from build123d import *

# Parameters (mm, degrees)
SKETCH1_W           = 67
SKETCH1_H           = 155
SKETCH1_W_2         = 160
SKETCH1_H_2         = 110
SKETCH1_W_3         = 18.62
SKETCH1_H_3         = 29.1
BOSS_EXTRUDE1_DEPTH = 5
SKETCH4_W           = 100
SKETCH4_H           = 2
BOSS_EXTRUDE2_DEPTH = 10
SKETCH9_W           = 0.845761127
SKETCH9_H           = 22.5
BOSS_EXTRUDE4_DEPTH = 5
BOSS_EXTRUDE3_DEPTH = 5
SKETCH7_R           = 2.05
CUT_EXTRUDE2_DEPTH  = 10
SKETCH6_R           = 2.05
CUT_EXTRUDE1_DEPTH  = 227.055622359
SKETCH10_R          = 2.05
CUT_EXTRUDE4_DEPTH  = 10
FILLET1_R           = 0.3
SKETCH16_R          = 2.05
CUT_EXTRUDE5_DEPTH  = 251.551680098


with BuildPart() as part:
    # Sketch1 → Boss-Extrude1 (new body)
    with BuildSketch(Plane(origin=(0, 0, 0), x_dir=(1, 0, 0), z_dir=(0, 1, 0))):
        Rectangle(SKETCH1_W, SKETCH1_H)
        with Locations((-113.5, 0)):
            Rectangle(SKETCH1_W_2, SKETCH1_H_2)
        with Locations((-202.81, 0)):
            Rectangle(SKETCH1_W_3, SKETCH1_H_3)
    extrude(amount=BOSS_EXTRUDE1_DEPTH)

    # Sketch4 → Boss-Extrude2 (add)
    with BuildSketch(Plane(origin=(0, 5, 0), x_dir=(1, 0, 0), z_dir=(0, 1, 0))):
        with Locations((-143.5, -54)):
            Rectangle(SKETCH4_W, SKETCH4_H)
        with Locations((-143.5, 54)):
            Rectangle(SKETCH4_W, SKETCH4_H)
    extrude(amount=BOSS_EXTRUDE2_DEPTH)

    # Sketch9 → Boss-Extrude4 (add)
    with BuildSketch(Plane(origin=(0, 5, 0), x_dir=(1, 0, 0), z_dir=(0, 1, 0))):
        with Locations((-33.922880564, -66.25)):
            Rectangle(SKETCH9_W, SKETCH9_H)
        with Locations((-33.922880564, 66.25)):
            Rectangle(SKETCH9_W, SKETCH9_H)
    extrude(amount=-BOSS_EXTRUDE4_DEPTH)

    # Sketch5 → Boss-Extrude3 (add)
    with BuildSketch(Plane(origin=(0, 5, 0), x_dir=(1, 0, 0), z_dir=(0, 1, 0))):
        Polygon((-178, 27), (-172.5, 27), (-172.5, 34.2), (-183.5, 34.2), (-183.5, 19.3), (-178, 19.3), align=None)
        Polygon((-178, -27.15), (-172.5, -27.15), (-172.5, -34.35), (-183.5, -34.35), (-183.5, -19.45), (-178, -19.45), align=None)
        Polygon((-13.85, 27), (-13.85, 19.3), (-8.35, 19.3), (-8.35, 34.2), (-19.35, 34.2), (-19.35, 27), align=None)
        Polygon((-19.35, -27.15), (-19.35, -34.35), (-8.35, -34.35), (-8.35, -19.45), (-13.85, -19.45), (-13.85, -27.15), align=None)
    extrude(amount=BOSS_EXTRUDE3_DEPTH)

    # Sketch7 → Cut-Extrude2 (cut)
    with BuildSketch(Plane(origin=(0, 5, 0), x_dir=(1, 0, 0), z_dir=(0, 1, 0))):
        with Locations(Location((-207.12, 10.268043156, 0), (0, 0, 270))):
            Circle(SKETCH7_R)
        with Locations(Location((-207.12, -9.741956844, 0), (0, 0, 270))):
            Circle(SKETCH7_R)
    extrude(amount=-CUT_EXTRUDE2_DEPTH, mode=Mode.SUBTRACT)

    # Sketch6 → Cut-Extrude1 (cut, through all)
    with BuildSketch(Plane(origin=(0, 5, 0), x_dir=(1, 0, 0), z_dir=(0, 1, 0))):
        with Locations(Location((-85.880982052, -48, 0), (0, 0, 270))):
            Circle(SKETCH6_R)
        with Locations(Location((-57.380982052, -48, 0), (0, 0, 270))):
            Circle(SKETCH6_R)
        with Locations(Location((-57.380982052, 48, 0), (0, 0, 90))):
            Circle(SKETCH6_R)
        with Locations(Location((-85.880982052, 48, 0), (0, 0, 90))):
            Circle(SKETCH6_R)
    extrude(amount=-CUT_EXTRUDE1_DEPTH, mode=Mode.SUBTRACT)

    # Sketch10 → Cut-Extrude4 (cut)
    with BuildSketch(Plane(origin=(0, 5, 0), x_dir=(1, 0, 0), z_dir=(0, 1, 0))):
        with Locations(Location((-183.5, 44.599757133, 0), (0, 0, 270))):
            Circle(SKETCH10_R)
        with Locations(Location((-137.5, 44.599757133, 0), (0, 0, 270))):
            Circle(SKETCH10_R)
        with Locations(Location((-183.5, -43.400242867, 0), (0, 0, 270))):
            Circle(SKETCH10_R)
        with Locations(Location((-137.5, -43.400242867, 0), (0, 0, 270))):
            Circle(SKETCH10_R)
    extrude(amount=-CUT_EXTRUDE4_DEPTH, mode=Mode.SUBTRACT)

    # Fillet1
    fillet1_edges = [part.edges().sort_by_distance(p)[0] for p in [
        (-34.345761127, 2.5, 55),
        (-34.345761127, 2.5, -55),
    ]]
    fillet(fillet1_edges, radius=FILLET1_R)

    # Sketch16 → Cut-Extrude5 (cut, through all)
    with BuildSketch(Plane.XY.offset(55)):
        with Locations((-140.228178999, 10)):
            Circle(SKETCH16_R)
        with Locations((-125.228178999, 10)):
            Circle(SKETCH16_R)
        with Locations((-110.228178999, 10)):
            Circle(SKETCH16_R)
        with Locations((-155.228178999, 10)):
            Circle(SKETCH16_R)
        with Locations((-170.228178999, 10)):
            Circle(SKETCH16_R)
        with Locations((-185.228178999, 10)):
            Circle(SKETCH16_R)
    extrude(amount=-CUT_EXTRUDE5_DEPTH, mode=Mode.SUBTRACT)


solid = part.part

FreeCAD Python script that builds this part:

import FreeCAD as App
import Part
import Sketcher


def edges_at(feature, points):
    """Names of the edges that pass closest to the given points."""
    edges = feature.Shape.Edges
    near = lambda p: min(range(len(edges)), key=lambda i: edges[i].distToShape(Part.Vertex(*p))[0])
    return sorted({f"Edge{near(p) + 1}" for p in points})

doc = App.newDocument("Part")
params = doc.addObject("Spreadsheet::Sheet", "Params")
for row, (alias, value) in enumerate([
    ("sketch1_width", "67 mm"),
    ("sketch1_width2", "160 mm"),
    ("sketch1_height", "155 mm"),
    ("sketch1_height2", "22.5 mm"),
    ("sketch1_height3", "29.1 mm"),
    ("pad1_length", "5 mm"),
    ("sketch2_width", "100 mm"),
    ("sketch2_height", "2 mm"),
    ("pad2_length", "10 mm"),
    ("sketch3_height", "22.5 mm"),
    ("pad3_length", "5 mm"),
    ("sketch4_width", "11 mm"),
    ("sketch4_height", "7.2 mm"),
    ("sketch4_height2", "14.9 mm"),
    ("pad4_length", "5 mm"),
    ("sketch5_diameter", "4.1 mm"),
    ("pocket1_length", "10 mm"),
    ("sketch6_diameter", "4.1 mm"),
    ("sketch7_diameter", "4.1 mm"),
    ("pocket3_length", "10 mm"),
    ("fillet_radius", "0.3 mm"),
    ("sketch8_diameter", "4.1 mm"),
], start=1):
    params.set(f"A{row}", alias)
    params.set(f"B{row}", "=" + value)
    params.setAlias(f"B{row}", alias)

body = doc.addObject("PartDesign::Body", "Body")

sketch1 = doc.addObject("Sketcher::SketchObject", "Sketch")
body.addObject(sketch1)
sketch1.AttachmentSupport = (doc.XZ_Plane, [""])
sketch1.MapMode = "FlatFace"
sketch1.addGeometry(Part.LineSegment(App.Vector(-33.5, 55, 0), App.Vector(-33.5, 77.5, 0)), False)
sketch1.addGeometry(Part.LineSegment(App.Vector(-33.5, 77.5, 0), App.Vector(33.5, 77.5, 0)), False)
sketch1.addGeometry(Part.LineSegment(App.Vector(33.5, 77.5, 0), App.Vector(33.5, -77.5, 0)), False)
sketch1.addGeometry(Part.LineSegment(App.Vector(33.5, -77.5, 0), App.Vector(-33.5, -77.5, 0)), False)
sketch1.addGeometry(Part.LineSegment(App.Vector(-33.5, -77.5, 0), App.Vector(-33.5, -55, 0)), False)
sketch1.addGeometry(Part.LineSegment(App.Vector(-33.5, -55, 0), App.Vector(-193.5, -55, 0)), False)
sketch1.addGeometry(Part.LineSegment(App.Vector(-193.5, -55, 0), App.Vector(-193.5, -14.55, 0)), False)
sketch1.addGeometry(Part.LineSegment(App.Vector(-193.5, -14.55, 0), App.Vector(-212.12, -14.55, 0)), False)
sketch1.addGeometry(Part.LineSegment(App.Vector(-212.12, -14.55, 0), App.Vector(-212.12, 14.55, 0)), False)
sketch1.addGeometry(Part.LineSegment(App.Vector(-212.12, 14.55, 0), App.Vector(-193.5, 14.55, 0)), False)
sketch1.addGeometry(Part.LineSegment(App.Vector(-193.5, 14.55, 0), App.Vector(-193.5, 55, 0)), False)
sketch1.addGeometry(Part.LineSegment(App.Vector(-193.5, 55, 0), App.Vector(-33.5, 55, 0)), False)
sketch1.addConstraint(Sketcher.Constraint("Coincident", 0, 2, 1, 1))
sketch1.addConstraint(Sketcher.Constraint("Coincident", 1, 2, 2, 1))
sketch1.addConstraint(Sketcher.Constraint("Coincident", 2, 2, 3, 1))
sketch1.addConstraint(Sketcher.Constraint("Coincident", 3, 2, 4, 1))
sketch1.addConstraint(Sketcher.Constraint("Coincident", 4, 2, 5, 1))
sketch1.addConstraint(Sketcher.Constraint("Coincident", 5, 2, 6, 1))
sketch1.addConstraint(Sketcher.Constraint("Coincident", 6, 2, 7, 1))
sketch1.addConstraint(Sketcher.Constraint("Coincident", 7, 2, 8, 1))
sketch1.addConstraint(Sketcher.Constraint("Coincident", 8, 2, 9, 1))
sketch1.addConstraint(Sketcher.Constraint("Coincident", 9, 2, 10, 1))
sketch1.addConstraint(Sketcher.Constraint("Coincident", 10, 2, 11, 1))
sketch1.addConstraint(Sketcher.Constraint("Coincident", 11, 2, 0, 1))
sketch1.addConstraint(Sketcher.Constraint("Vertical", 0))
sketch1.addConstraint(Sketcher.Constraint("Horizontal", 1))
sketch1.addConstraint(Sketcher.Constraint("Vertical", 2))
sketch1.addConstraint(Sketcher.Constraint("Horizontal", 3))
sketch1.addConstraint(Sketcher.Constraint("Vertical", 4))
sketch1.addConstraint(Sketcher.Constraint("Horizontal", 5))
sketch1.addConstraint(Sketcher.Constraint("Vertical", 6))
sketch1.addConstraint(Sketcher.Constraint("Horizontal", 7))
sketch1.addConstraint(Sketcher.Constraint("Vertical", 8))
sketch1.addConstraint(Sketcher.Constraint("Horizontal", 9))
sketch1.addConstraint(Sketcher.Constraint("Vertical", 10))
sketch1.addConstraint(Sketcher.Constraint("Horizontal", 11))
sketch1.addConstraint(Sketcher.Constraint("Symmetric", 0, 2, 2, 2, -1, 1))
sketch1.addConstraint(Sketcher.Constraint("Symmetric", 6, 2, 9, 2, -1))
sketch1.addConstraint(Sketcher.Constraint("Symmetric", 4, 2, 11, 2, -1))
sketch1.addConstraint(Sketcher.Constraint("DistanceX", 1, 1, 1, 2, 67.0))
sketch1.addConstraint(Sketcher.Constraint("DistanceX", 5, 2, 5, 1, 160.0))
sketch1.addConstraint(Sketcher.Constraint("DistanceY", 2, 2, 2, 1, 155.0))
sketch1.addConstraint(Sketcher.Constraint("DistanceY", 0, 1, 0, 2, 22.5))
sketch1.addConstraint(Sketcher.Constraint("DistanceY", 8, 1, 8, 2, 29.1))
sketch1.addConstraint(Sketcher.Constraint("DistanceX", 7, 2, 7, 1, 18.62))
sketch1.setExpression("Constraints[27]", "Params.sketch1_width")
sketch1.setExpression("Constraints[28]", "Params.sketch1_width2")
sketch1.setExpression("Constraints[29]", "Params.sketch1_height")
sketch1.setExpression("Constraints[30]", "Params.sketch1_height2")
sketch1.setExpression("Constraints[31]", "Params.sketch1_height3")
pad1 = doc.addObject("PartDesign::Pad", "Pad")
body.addObject(pad1)
pad1.Profile = sketch1
pad1.setExpression("Length", "Params.pad1_length")
pad1.Reversed = True

sketch2 = doc.addObject("Sketcher::SketchObject", "Sketch001")
body.addObject(sketch2)
sketch2.AttachmentSupport = (doc.XZ_Plane, [""])
sketch2.MapMode = "FlatFace"
sketch2.AttachmentOffset = App.Placement(App.Vector(0, 0, -5), App.Rotation())
sketch2.addGeometry(Part.LineSegment(App.Vector(-193.5, 53, 0), App.Vector(-193.5, 55, 0)), False)
sketch2.addGeometry(Part.LineSegment(App.Vector(-193.5, 55, 0), App.Vector(-93.5, 55, 0)), False)
sketch2.addGeometry(Part.LineSegment(App.Vector(-93.5, 55, 0), App.Vector(-93.5, 53, 0)), False)
sketch2.addGeometry(Part.LineSegment(App.Vector(-93.5, 53, 0), App.Vector(-193.5, 53, 0)), False)
sketch2.addGeometry(Part.LineSegment(App.Vector(-193.5, -55, 0), App.Vector(-193.5, -53, 0)), False)
sketch2.addGeometry(Part.LineSegment(App.Vector(-193.5, -53, 0), App.Vector(-93.5, -53, 0)), False)
sketch2.addGeometry(Part.LineSegment(App.Vector(-93.5, -53, 0), App.Vector(-93.5, -55, 0)), False)
sketch2.addGeometry(Part.LineSegment(App.Vector(-93.5, -55, 0), App.Vector(-193.5, -55, 0)), False)
sketch2.addConstraint(Sketcher.Constraint("Coincident", 0, 2, 1, 1))
sketch2.addConstraint(Sketcher.Constraint("Coincident", 1, 2, 2, 1))
sketch2.addConstraint(Sketcher.Constraint("Coincident", 2, 2, 3, 1))
sketch2.addConstraint(Sketcher.Constraint("Coincident", 3, 2, 0, 1))
sketch2.addConstraint(Sketcher.Constraint("Coincident", 4, 2, 5, 1))
sketch2.addConstraint(Sketcher.Constraint("Coincident", 5, 2, 6, 1))
sketch2.addConstraint(Sketcher.Constraint("Coincident", 6, 2, 7, 1))
sketch2.addConstraint(Sketcher.Constraint("Coincident", 7, 2, 4, 1))
sketch2.addConstraint(Sketcher.Constraint("Vertical", 0))
sketch2.addConstraint(Sketcher.Constraint("Horizontal", 1))
sketch2.addConstraint(Sketcher.Constraint("Vertical", 2))
sketch2.addConstraint(Sketcher.Constraint("Horizontal", 3))
sketch2.addConstraint(Sketcher.Constraint("Vertical", 4))
sketch2.addConstraint(Sketcher.Constraint("Horizontal", 5))
sketch2.addConstraint(Sketcher.Constraint("Vertical", 6))
sketch2.addConstraint(Sketcher.Constraint("Horizontal", 7))
sketch2.addConstraint(Sketcher.Constraint("Symmetric", 3, 2, 4, 2, -1))
sketch2.addConstraint(Sketcher.Constraint("Symmetric", 1, 2, 6, 2, -1))
sketch2.addConstraint(Sketcher.Constraint("DistanceX", 1, 1, 1, 2, 100.0))
sketch2.addConstraint(Sketcher.Constraint("DistanceY", 0, 1, 0, 2, 2.0))
sketch2.addConstraint(Sketcher.Constraint("DistanceY", -1, 1, 0, 2, 55.0))
sketch2.addConstraint(Sketcher.Constraint("DistanceX", 0, 2, -1, 1, 193.5))
sketch2.setExpression("Constraints[18]", "Params.sketch2_width")
sketch2.setExpression("Constraints[19]", "Params.sketch2_height")
pad2 = doc.addObject("PartDesign::Pad", "Pad001")
body.addObject(pad2)
pad2.Profile = sketch2
pad2.setExpression("Length", "Params.pad2_length")
pad2.Reversed = True

sketch3 = doc.addObject("Sketcher::SketchObject", "Sketch002")
body.addObject(sketch3)
sketch3.AttachmentSupport = (doc.XZ_Plane, [""])
sketch3.MapMode = "FlatFace"
sketch3.AttachmentOffset = App.Placement(App.Vector(0, 0, -5), App.Rotation())
sketch3.addGeometry(Part.LineSegment(App.Vector(-34.345761, 55, 0), App.Vector(-34.345761, 77.5, 0)), False)
sketch3.addGeometry(Part.LineSegment(App.Vector(-34.345761, 77.5, 0), App.Vector(-33.5, 77.5, 0)), False)
sketch3.addGeometry(Part.LineSegment(App.Vector(-33.5, 77.5, 0), App.Vector(-33.5, 55, 0)), False)
sketch3.addGeometry(Part.LineSegment(App.Vector(-33.5, 55, 0), App.Vector(-34.345761, 55, 0)), False)
sketch3.addGeometry(Part.LineSegment(App.Vector(-34.345761, -77.5, 0), App.Vector(-34.345761, -55, 0)), False)
sketch3.addGeometry(Part.LineSegment(App.Vector(-34.345761, -55, 0), App.Vector(-33.5, -55, 0)), False)
sketch3.addGeometry(Part.LineSegment(App.Vector(-33.5, -55, 0), App.Vector(-33.5, -77.5, 0)), False)
sketch3.addGeometry(Part.LineSegment(App.Vector(-33.5, -77.5, 0), App.Vector(-34.345761, -77.5, 0)), False)
sketch3.addConstraint(Sketcher.Constraint("Coincident", 0, 2, 1, 1))
sketch3.addConstraint(Sketcher.Constraint("Coincident", 1, 2, 2, 1))
sketch3.addConstraint(Sketcher.Constraint("Coincident", 2, 2, 3, 1))
sketch3.addConstraint(Sketcher.Constraint("Coincident", 3, 2, 0, 1))
sketch3.addConstraint(Sketcher.Constraint("Coincident", 4, 2, 5, 1))
sketch3.addConstraint(Sketcher.Constraint("Coincident", 5, 2, 6, 1))
sketch3.addConstraint(Sketcher.Constraint("Coincident", 6, 2, 7, 1))
sketch3.addConstraint(Sketcher.Constraint("Coincident", 7, 2, 4, 1))
sketch3.addConstraint(Sketcher.Constraint("Vertical", 0))
sketch3.addConstraint(Sketcher.Constraint("Horizontal", 1))
sketch3.addConstraint(Sketcher.Constraint("Vertical", 2))
sketch3.addConstraint(Sketcher.Constraint("Horizontal", 3))
sketch3.addConstraint(Sketcher.Constraint("Vertical", 4))
sketch3.addConstraint(Sketcher.Constraint("Horizontal", 5))
sketch3.addConstraint(Sketcher.Constraint("Vertical", 6))
sketch3.addConstraint(Sketcher.Constraint("Horizontal", 7))
sketch3.addConstraint(Sketcher.Constraint("Symmetric", 3, 2, 4, 2, -1))
sketch3.addConstraint(Sketcher.Constraint("Symmetric", 1, 2, 6, 2, -1))
sketch3.addConstraint(Sketcher.Constraint("DistanceY", 0, 1, 0, 2, 22.5))
sketch3.addConstraint(Sketcher.Constraint("DistanceY", -1, 1, 2, 2, 55.0))
sketch3.addConstraint(Sketcher.Constraint("DistanceX", 1, 2, -1, 1, 33.5))
sketch3.addConstraint(Sketcher.Constraint("DistanceX", 1, 1, 1, 2, 0.845761))
sketch3.setExpression("Constraints[18]", "Params.sketch3_height")
pad3 = doc.addObject("PartDesign::Pad", "Pad002")
body.addObject(pad3)
pad3.Profile = sketch3
pad3.setExpression("Length", "Params.pad3_length")

sketch4 = doc.addObject("Sketcher::SketchObject", "Sketch003")
body.addObject(sketch4)
sketch4.AttachmentSupport = (doc.XZ_Plane, [""])
sketch4.MapMode = "FlatFace"
sketch4.AttachmentOffset = App.Placement(App.Vector(0, 0, -5), App.Rotation())
sketch4.addGeometry(Part.LineSegment(App.Vector(-178, -27, 0), App.Vector(-172.5, -27, 0)), False)
sketch4.addGeometry(Part.LineSegment(App.Vector(-172.5, -27, 0), App.Vector(-172.5, -34.2, 0)), False)
sketch4.addGeometry(Part.LineSegment(App.Vector(-172.5, -34.2, 0), App.Vector(-183.5, -34.2, 0)), False)
sketch4.addGeometry(Part.LineSegment(App.Vector(-183.5, -34.2, 0), App.Vector(-183.5, -19.3, 0)), False)
sketch4.addGeometry(Part.LineSegment(App.Vector(-183.5, -19.3, 0), App.Vector(-178, -19.3, 0)), False)
sketch4.addGeometry(Part.LineSegment(App.Vector(-178, -19.3, 0), App.Vector(-178, -27, 0)), False)
sketch4.addGeometry(Part.LineSegment(App.Vector(-172.5, 27.15, 0), App.Vector(-178, 27.15, 0)), False)
sketch4.addGeometry(Part.LineSegment(App.Vector(-178, 27.15, 0), App.Vector(-178, 19.45, 0)), False)
sketch4.addGeometry(Part.LineSegment(App.Vector(-178, 19.45, 0), App.Vector(-183.5, 19.45, 0)), False)
sketch4.addGeometry(Part.LineSegment(App.Vector(-183.5, 19.45, 0), App.Vector(-183.5, 34.35, 0)), False)
sketch4.addGeometry(Part.LineSegment(App.Vector(-183.5, 34.35, 0), App.Vector(-172.5, 34.35, 0)), False)
sketch4.addGeometry(Part.LineSegment(App.Vector(-172.5, 34.35, 0), App.Vector(-172.5, 27.15, 0)), False)
sketch4.addGeometry(Part.LineSegment(App.Vector(-13.85, -27, 0), App.Vector(-13.85, -19.3, 0)), False)
sketch4.addGeometry(Part.LineSegment(App.Vector(-13.85, -19.3, 0), App.Vector(-8.35, -19.3, 0)), False)
sketch4.addGeometry(Part.LineSegment(App.Vector(-8.35, -19.3, 0), App.Vector(-8.35, -34.2, 0)), False)
sketch4.addGeometry(Part.LineSegment(App.Vector(-8.35, -34.2, 0), App.Vector(-19.35, -34.2, 0)), False)
sketch4.addGeometry(Part.LineSegment(App.Vector(-19.35, -34.2, 0), App.Vector(-19.35, -27, 0)), False)
sketch4.addGeometry(Part.LineSegment(App.Vector(-19.35, -27, 0), App.Vector(-13.85, -27, 0)), False)
sketch4.addGeometry(Part.LineSegment(App.Vector(-19.35, 27.15, 0), App.Vector(-19.35, 34.35, 0)), False)
sketch4.addGeometry(Part.LineSegment(App.Vector(-19.35, 34.35, 0), App.Vector(-8.35, 34.35, 0)), False)
sketch4.addGeometry(Part.LineSegment(App.Vector(-8.35, 34.35, 0), App.Vector(-8.35, 19.45, 0)), False)
sketch4.addGeometry(Part.LineSegment(App.Vector(-8.35, 19.45, 0), App.Vector(-13.85, 19.45, 0)), False)
sketch4.addGeometry(Part.LineSegment(App.Vector(-13.85, 19.45, 0), App.Vector(-13.85, 27.15, 0)), False)
sketch4.addGeometry(Part.LineSegment(App.Vector(-13.85, 27.15, 0), App.Vector(-19.35, 27.15, 0)), False)
sketch4.addConstraint(Sketcher.Constraint("Coincident", 0, 2, 1, 1))
sketch4.addConstraint(Sketcher.Constraint("Coincident", 1, 2, 2, 1))
sketch4.addConstraint(Sketcher.Constraint("Coincident", 2, 2, 3, 1))
sketch4.addConstraint(Sketcher.Constraint("Coincident", 3, 2, 4, 1))
sketch4.addConstraint(Sketcher.Constraint("Coincident", 4, 2, 5, 1))
sketch4.addConstraint(Sketcher.Constraint("Coincident", 5, 2, 0, 1))
sketch4.addConstraint(Sketcher.Constraint("Coincident", 6, 2, 7, 1))
sketch4.addConstraint(Sketcher.Constraint("Coincident", 7, 2, 8, 1))
sketch4.addConstraint(Sketcher.Constraint("Coincident", 8, 2, 9, 1))
sketch4.addConstraint(Sketcher.Constraint("Coincident", 9, 2, 10, 1))
sketch4.addConstraint(Sketcher.Constraint("Coincident", 10, 2, 11, 1))
sketch4.addConstraint(Sketcher.Constraint("Coincident", 11, 2, 6, 1))
sketch4.addConstraint(Sketcher.Constraint("Coincident", 12, 2, 13, 1))
sketch4.addConstraint(Sketcher.Constraint("Coincident", 13, 2, 14, 1))
sketch4.addConstraint(Sketcher.Constraint("Coincident", 14, 2, 15, 1))
sketch4.addConstraint(Sketcher.Constraint("Coincident", 15, 2, 16, 1))
sketch4.addConstraint(Sketcher.Constraint("Coincident", 16, 2, 17, 1))
sketch4.addConstraint(Sketcher.Constraint("Coincident", 17, 2, 12, 1))
sketch4.addConstraint(Sketcher.Constraint("Coincident", 18, 2, 19, 1))
sketch4.addConstraint(Sketcher.Constraint("Coincident", 19, 2, 20, 1))
sketch4.addConstraint(Sketcher.Constraint("Coincident", 20, 2, 21, 1))
sketch4.addConstraint(Sketcher.Constraint("Coincident", 21, 2, 22, 1))
sketch4.addConstraint(Sketcher.Constraint("Coincident", 22, 2, 23, 1))
sketch4.addConstraint(Sketcher.Constraint("Coincident", 23, 2, 18, 1))
sketch4.addConstraint(Sketcher.Constraint("Horizontal", 0))
sketch4.addConstraint(Sketcher.Constraint("Vertical", 1))
sketch4.addConstraint(Sketcher.Constraint("Horizontal", 2))
sketch4.addConstraint(Sketcher.Constraint("Vertical", 3))
sketch4.addConstraint(Sketcher.Constraint("Horizontal", 4))
sketch4.addConstraint(Sketcher.Constraint("Vertical", 5))
sketch4.addConstraint(Sketcher.Constraint("Horizontal", 6))
sketch4.addConstraint(Sketcher.Constraint("Vertical", 7))
sketch4.addConstraint(Sketcher.Constraint("Horizontal", 8))
sketch4.addConstraint(Sketcher.Constraint("Vertical", 9))
sketch4.addConstraint(Sketcher.Constraint("Horizontal", 10))
sketch4.addConstraint(Sketcher.Constraint("Vertical", 11))
sketch4.addConstraint(Sketcher.Constraint("Vertical", 12))
sketch4.addConstraint(Sketcher.Constraint("Horizontal", 13))
sketch4.addConstraint(Sketcher.Constraint("Vertical", 14))
sketch4.addConstraint(Sketcher.Constraint("Horizontal", 15))
sketch4.addConstraint(Sketcher.Constraint("Vertical", 16))
sketch4.addConstraint(Sketcher.Constraint("Horizontal", 17))
sketch4.addConstraint(Sketcher.Constraint("Vertical", 18))
sketch4.addConstraint(Sketcher.Constraint("Horizontal", 19))
sketch4.addConstraint(Sketcher.Constraint("Vertical", 20))
sketch4.addConstraint(Sketcher.Constraint("Horizontal", 21))
sketch4.addConstraint(Sketcher.Constraint("Vertical", 22))
sketch4.addConstraint(Sketcher.Constraint("Horizontal", 23))
sketch4.addConstraint(Sketcher.Constraint("Horizontal", 4, 2, 12, 2))
sketch4.addConstraint(Sketcher.Constraint("Horizontal", 2, 2, 14, 2))
sketch4.addConstraint(Sketcher.Constraint("Horizontal", 5, 2, 16, 2))
sketch4.addConstraint(Sketcher.Constraint("Horizontal", 10, 2, 18, 2))
sketch4.addConstraint(Sketcher.Constraint("Horizontal", 8, 2, 20, 2))
sketch4.addConstraint(Sketcher.Constraint("Horizontal", 11, 2, 22, 2))
sketch4.addConstraint(Sketcher.Constraint("Vertical", 5, 2, 6, 2))
sketch4.addConstraint(Sketcher.Constraint("Vertical", 3, 2, 8, 2))
sketch4.addConstraint(Sketcher.Constraint("Vertical", 1, 2, 10, 2))
sketch4.addConstraint(Sketcher.Constraint("Vertical", 16, 2, 18, 2))
sketch4.addConstraint(Sketcher.Constraint("Vertical", 14, 2, 19, 2))
sketch4.addConstraint(Sketcher.Constraint("Vertical", 17, 2, 21, 2))
sketch4.addConstraint(Sketcher.Constraint("Equal", 0, 4))
sketch4.addConstraint(Sketcher.Constraint("Equal", 8, 13))
sketch4.addConstraint(Sketcher.Constraint("Equal", 10, 15))
sketch4.addConstraint(Sketcher.Constraint("Equal", 5, 7))
sketch4.addConstraint(Sketcher.Constraint("Equal", 3, 9))
sketch4.addConstraint(Sketcher.Constraint("DistanceX", 2, 2, 2, 1, 11.0))
sketch4.addConstraint(Sketcher.Constraint("DistanceY", 1, 2, 1, 1, 7.2))
sketch4.addConstraint(Sketcher.Constraint("DistanceY", 3, 1, 3, 2, 14.9))
sketch4.addConstraint(Sketcher.Constraint("DistanceY", 0, 2, -1, 1, 27.0))
sketch4.addConstraint(Sketcher.Constraint("DistanceX", 4, 2, -1, 1, 178.0))
sketch4.addConstraint(Sketcher.Constraint("DistanceY", -1, 1, 6, 2, 27.15))
sketch4.addConstraint(Sketcher.Constraint("DistanceX", 12, 2, -1, 1, 13.85))
sketch4.setExpression("Constraints[65]", "Params.sketch4_width")
sketch4.setExpression("Constraints[66]", "Params.sketch4_height")
sketch4.setExpression("Constraints[67]", "Params.sketch4_height2")
pad4 = doc.addObject("PartDesign::Pad", "Pad003")
body.addObject(pad4)
pad4.Profile = sketch4
pad4.setExpression("Length", "Params.pad4_length")
pad4.Reversed = True

sketch5 = doc.addObject("Sketcher::SketchObject", "Sketch004")
body.addObject(sketch5)
sketch5.AttachmentSupport = (doc.XZ_Plane, [""])
sketch5.MapMode = "FlatFace"
sketch5.AttachmentOffset = App.Placement(App.Vector(0, 0, -5), App.Rotation())
sketch5.addGeometry(Part.Circle(App.Vector(-207.12, -10.268043, 0), App.Vector(0, 0, 1), 2.05), False)
sketch5.addGeometry(Part.Circle(App.Vector(-207.12, 9.741957, 0), App.Vector(0, 0, 1), 2.05), False)
sketch5.addConstraint(Sketcher.Constraint("Equal", 0, 1))
sketch5.addConstraint(Sketcher.Constraint("Vertical", 0, 3, 1, 3))
sketch5.addConstraint(Sketcher.Constraint("Diameter", 0, 4.1))
sketch5.addConstraint(Sketcher.Constraint("DistanceX", 0, 3, -1, 1, 207.12))
sketch5.addConstraint(Sketcher.Constraint("DistanceY", 0, 3, 1, 3, 20.01))
sketch5.addConstraint(Sketcher.Constraint("DistanceY", 0, 3, -1, 1, 10.268043))
sketch5.setExpression("Constraints[2]", "Params.sketch5_diameter")
pocket1 = doc.addObject("PartDesign::Pocket", "Pocket")
body.addObject(pocket1)
pocket1.Profile = sketch5
pocket1.setExpression("Length", "Params.pocket1_length")
pocket1.Reversed = True

sketch6 = doc.addObject("Sketcher::SketchObject", "Sketch005")
body.addObject(sketch6)
sketch6.AttachmentSupport = (doc.XZ_Plane, [""])
sketch6.MapMode = "FlatFace"
sketch6.AttachmentOffset = App.Placement(App.Vector(0, 0, -5), App.Rotation())
sketch6.addGeometry(Part.Circle(App.Vector(-85.880982, 48, 0), App.Vector(0, 0, 1), 2.05), False)
sketch6.addGeometry(Part.Circle(App.Vector(-57.380982, 48, 0), App.Vector(0, 0, 1), 2.05), False)
sketch6.addGeometry(Part.Circle(App.Vector(-57.380982, -48, 0), App.Vector(0, 0, 1), 2.05), False)
sketch6.addGeometry(Part.Circle(App.Vector(-85.880982, -48, 0), App.Vector(0, 0, 1), 2.05), False)
sketch6.addConstraint(Sketcher.Constraint("Equal", 0, 1))
sketch6.addConstraint(Sketcher.Constraint("Equal", 1, 2))
sketch6.addConstraint(Sketcher.Constraint("Equal", 2, 3))
sketch6.addConstraint(Sketcher.Constraint("Symmetric", 1, 3, 2, 3, -1))
sketch6.addConstraint(Sketcher.Constraint("Symmetric", 0, 3, 3, 3, -1))
sketch6.addConstraint(Sketcher.Constraint("Horizontal", 0, 3, 1, 3))
sketch6.addConstraint(Sketcher.Constraint("Diameter", 0, 4.1))
sketch6.addConstraint(Sketcher.Constraint("DistanceY", -1, 1, 0, 3, 48.0))
sketch6.addConstraint(Sketcher.Constraint("DistanceX", 0, 3, 1, 3, 28.5))
sketch6.addConstraint(Sketcher.Constraint("DistanceX", 0, 3, -1, 1, 85.880982))
sketch6.setExpression("Constraints[6]", "Params.sketch6_diameter")
pocket2 = doc.addObject("PartDesign::Pocket", "Pocket001")
body.addObject(pocket2)
pocket2.Profile = sketch6
pocket2.Type = "ThroughAll"
pocket2.Reversed = True

sketch7 = doc.addObject("Sketcher::SketchObject", "Sketch006")
body.addObject(sketch7)
sketch7.AttachmentSupport = (doc.XZ_Plane, [""])
sketch7.MapMode = "FlatFace"
sketch7.AttachmentOffset = App.Placement(App.Vector(0, 0, -5), App.Rotation())
sketch7.addGeometry(Part.Circle(App.Vector(-183.5, -44.599757, 0), App.Vector(0, 0, 1), 2.05), False)
sketch7.addGeometry(Part.Circle(App.Vector(-137.5, -44.599757, 0), App.Vector(0, 0, 1), 2.05), False)
sketch7.addGeometry(Part.Circle(App.Vector(-183.5, 43.400243, 0), App.Vector(0, 0, 1), 2.05), False)
sketch7.addGeometry(Part.Circle(App.Vector(-137.5, 43.400243, 0), App.Vector(0, 0, 1), 2.05), False)
sketch7.addConstraint(Sketcher.Constraint("Equal", 0, 1))
sketch7.addConstraint(Sketcher.Constraint("Equal", 1, 2))
sketch7.addConstraint(Sketcher.Constraint("Equal", 2, 3))
sketch7.addConstraint(Sketcher.Constraint("Horizontal", 0, 3, 1, 3))
sketch7.addConstraint(Sketcher.Constraint("Horizontal", 2, 3, 3, 3))
sketch7.addConstraint(Sketcher.Constraint("Vertical", 0, 3, 2, 3))
sketch7.addConstraint(Sketcher.Constraint("Vertical", 1, 3, 3, 3))
sketch7.addConstraint(Sketcher.Constraint("Diameter", 0, 4.1))
sketch7.addConstraint(Sketcher.Constraint("DistanceX", 0, 3, 1, 3, 46.0))
sketch7.addConstraint(Sketcher.Constraint("DistanceY", 0, 3, 2, 3, 88.0))
sketch7.addConstraint(Sketcher.Constraint("DistanceX", 0, 3, -1, 1, 183.5))
sketch7.addConstraint(Sketcher.Constraint("DistanceY", 0, 3, -1, 1, 44.599757))
sketch7.setExpression("Constraints[7]", "Params.sketch7_diameter")
pocket3 = doc.addObject("PartDesign::Pocket", "Pocket002")
body.addObject(pocket3)
pocket3.Profile = sketch7
pocket3.setExpression("Length", "Params.pocket3_length")
pocket3.Reversed = True
doc.recompute()

fillet = doc.addObject("PartDesign::Fillet", "Fillet")
body.addObject(fillet)
fillet.Base = (pocket3, edges_at(pocket3, [(-34.346, 2.5, 55), (-34.346, 2.5, -55)]))
fillet.setExpression("Radius", "Params.fillet_radius")

sketch8 = doc.addObject("Sketcher::SketchObject", "Sketch007")
body.addObject(sketch8)
sketch8.AttachmentSupport = (doc.XY_Plane, [""])
sketch8.MapMode = "FlatFace"
sketch8.AttachmentOffset = App.Placement(App.Vector(0, 0, 55), App.Rotation())
sketch8.addGeometry(Part.Circle(App.Vector(-140.228179, 10, 0), App.Vector(0, 0, 1), 2.05), False)
sketch8.addGeometry(Part.Circle(App.Vector(-125.228179, 10, 0), App.Vector(0, 0, 1), 2.05), False)
sketch8.addGeometry(Part.Circle(App.Vector(-110.228179, 10, 0), App.Vector(0, 0, 1), 2.05), False)
sketch8.addGeometry(Part.Circle(App.Vector(-155.228179, 10, 0), App.Vector(0, 0, 1), 2.05), False)
sketch8.addGeometry(Part.Circle(App.Vector(-170.228179, 10, 0), App.Vector(0, 0, 1), 2.05), False)
sketch8.addGeometry(Part.Circle(App.Vector(-185.228179, 10, 0), App.Vector(0, 0, 1), 2.05), False)
sketch8.addConstraint(Sketcher.Constraint("Equal", 0, 1))
sketch8.addConstraint(Sketcher.Constraint("Equal", 1, 2))
sketch8.addConstraint(Sketcher.Constraint("Equal", 2, 3))
sketch8.addConstraint(Sketcher.Constraint("Equal", 3, 4))
sketch8.addConstraint(Sketcher.Constraint("Equal", 4, 5))
sketch8.addConstraint(Sketcher.Constraint("Horizontal", 0, 3, 1, 3))
sketch8.addConstraint(Sketcher.Constraint("Horizontal", 1, 3, 2, 3))
sketch8.addConstraint(Sketcher.Constraint("Horizontal", 2, 3, 3, 3))
sketch8.addConstraint(Sketcher.Constraint("Horizontal", 3, 3, 4, 3))
sketch8.addConstraint(Sketcher.Constraint("Horizontal", 4, 3, 5, 3))
sketch8.addConstraint(Sketcher.Constraint("Diameter", 0, 4.1))
sketch8.addConstraint(Sketcher.Constraint("DistanceY", -1, 1, 0, 3, 10.0))
sketch8.addConstraint(Sketcher.Constraint("DistanceX", 0, 3, 1, 3, 15.0))
sketch8.addConstraint(Sketcher.Constraint("DistanceX", 1, 3, 2, 3, 15.0))
sketch8.addConstraint(Sketcher.Constraint("DistanceX", 3, 3, 0, 3, 15.0))
sketch8.addConstraint(Sketcher.Constraint("DistanceX", 4, 3, 3, 3, 15.0))
sketch8.addConstraint(Sketcher.Constraint("DistanceX", 5, 3, 4, 3, 15.0))
sketch8.addConstraint(Sketcher.Constraint("DistanceX", 0, 3, -1, 1, 140.228179))
sketch8.setExpression("Constraints[10]", "Params.sketch8_diameter")
pocket4 = doc.addObject("PartDesign::Pocket", "Pocket003")
body.addObject(pocket4)
pocket4.Profile = sketch8
pocket4.Type = "ThroughAll"

doc.recompute()
